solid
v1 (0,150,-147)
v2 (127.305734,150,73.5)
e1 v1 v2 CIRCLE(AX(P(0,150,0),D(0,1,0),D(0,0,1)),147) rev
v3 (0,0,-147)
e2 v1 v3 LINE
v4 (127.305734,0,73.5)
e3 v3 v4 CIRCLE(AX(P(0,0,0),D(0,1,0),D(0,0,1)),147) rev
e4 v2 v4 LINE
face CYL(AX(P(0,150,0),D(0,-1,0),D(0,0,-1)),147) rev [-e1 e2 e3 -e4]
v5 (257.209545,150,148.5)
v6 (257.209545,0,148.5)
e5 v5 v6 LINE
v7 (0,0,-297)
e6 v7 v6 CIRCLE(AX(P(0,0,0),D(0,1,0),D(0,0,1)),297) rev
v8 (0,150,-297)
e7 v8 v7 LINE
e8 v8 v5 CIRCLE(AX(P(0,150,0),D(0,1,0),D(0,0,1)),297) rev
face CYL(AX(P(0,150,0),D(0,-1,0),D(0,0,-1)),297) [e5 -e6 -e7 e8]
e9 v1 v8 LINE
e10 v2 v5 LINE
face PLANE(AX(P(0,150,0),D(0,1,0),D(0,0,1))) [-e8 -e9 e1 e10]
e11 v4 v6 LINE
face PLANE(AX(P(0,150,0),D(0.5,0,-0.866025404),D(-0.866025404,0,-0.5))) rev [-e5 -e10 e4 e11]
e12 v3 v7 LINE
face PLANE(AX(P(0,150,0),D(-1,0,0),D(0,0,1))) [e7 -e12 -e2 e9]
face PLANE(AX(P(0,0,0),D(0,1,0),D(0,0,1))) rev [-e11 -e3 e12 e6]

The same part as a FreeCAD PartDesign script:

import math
import FreeCAD as App
import Part
import Sketcher
from FreeCAD import Vector
Q = App.Units.Quantity

doc = App.newDocument("Part")
body = doc.addObject("PartDesign::Body", "Body")

sketch1 = body.newObject("Sketcher::SketchObject", "Sketch")
sketch1.AttachmentSupport = (doc.getObject("XZ_Plane"), [""])
sketch1.MapMode = "FlatFace"
sketch1.addGeometry([
    Part.ArcOfCircle(Part.Circle(Vector(0, 0, 0), Vector(0, 0, 1), 297), math.radians(-90), math.radians(30)),
    Part.LineSegment(Vector(0, -297, 0), Vector(0, -147, 0)),
    Part.ArcOfCircle(Part.Circle(Vector(0, 0, 0), Vector(0, 0, 1), 147), math.radians(-90), math.radians(30)),
    Part.LineSegment(Vector(127.305734, 73.5, 0), Vector(257.209545, 148.5, 0)),
], False)
sketch1.addConstraint([
    Sketcher.Constraint("Coincident", 0, 1, 1, 1),
    Sketcher.Constraint("Coincident", 1, 2, 2, 1),
    Sketcher.Constraint("Coincident", 2, 2, 3, 1),
    Sketcher.Constraint("Coincident", 3, 2, 0, 2),
    Sketcher.Constraint("Vertical", 1),
    Sketcher.Constraint("Coincident", 0, 3, -1, 1),
    Sketcher.Constraint("Coincident", 2, 3, -1, 1),
    Sketcher.Constraint("PointOnObject", 0, 1, -2),
    Sketcher.Constraint("Radius", 0, Q("297 mm")),
    Sketcher.Constraint("Radius", 2, Q("147 mm")),
    Sketcher.Constraint("Angle", 3, Q("30 deg")),
    Sketcher.Constraint("DistanceY", -1, 1, 2, 2, Q("73.5 mm")),
])
pad1 = body.newObject("PartDesign::Pad", "Pad")
pad1.Profile = sketch1
pad1.Length = 150
pad1.Reversed = True

doc.recompute()
